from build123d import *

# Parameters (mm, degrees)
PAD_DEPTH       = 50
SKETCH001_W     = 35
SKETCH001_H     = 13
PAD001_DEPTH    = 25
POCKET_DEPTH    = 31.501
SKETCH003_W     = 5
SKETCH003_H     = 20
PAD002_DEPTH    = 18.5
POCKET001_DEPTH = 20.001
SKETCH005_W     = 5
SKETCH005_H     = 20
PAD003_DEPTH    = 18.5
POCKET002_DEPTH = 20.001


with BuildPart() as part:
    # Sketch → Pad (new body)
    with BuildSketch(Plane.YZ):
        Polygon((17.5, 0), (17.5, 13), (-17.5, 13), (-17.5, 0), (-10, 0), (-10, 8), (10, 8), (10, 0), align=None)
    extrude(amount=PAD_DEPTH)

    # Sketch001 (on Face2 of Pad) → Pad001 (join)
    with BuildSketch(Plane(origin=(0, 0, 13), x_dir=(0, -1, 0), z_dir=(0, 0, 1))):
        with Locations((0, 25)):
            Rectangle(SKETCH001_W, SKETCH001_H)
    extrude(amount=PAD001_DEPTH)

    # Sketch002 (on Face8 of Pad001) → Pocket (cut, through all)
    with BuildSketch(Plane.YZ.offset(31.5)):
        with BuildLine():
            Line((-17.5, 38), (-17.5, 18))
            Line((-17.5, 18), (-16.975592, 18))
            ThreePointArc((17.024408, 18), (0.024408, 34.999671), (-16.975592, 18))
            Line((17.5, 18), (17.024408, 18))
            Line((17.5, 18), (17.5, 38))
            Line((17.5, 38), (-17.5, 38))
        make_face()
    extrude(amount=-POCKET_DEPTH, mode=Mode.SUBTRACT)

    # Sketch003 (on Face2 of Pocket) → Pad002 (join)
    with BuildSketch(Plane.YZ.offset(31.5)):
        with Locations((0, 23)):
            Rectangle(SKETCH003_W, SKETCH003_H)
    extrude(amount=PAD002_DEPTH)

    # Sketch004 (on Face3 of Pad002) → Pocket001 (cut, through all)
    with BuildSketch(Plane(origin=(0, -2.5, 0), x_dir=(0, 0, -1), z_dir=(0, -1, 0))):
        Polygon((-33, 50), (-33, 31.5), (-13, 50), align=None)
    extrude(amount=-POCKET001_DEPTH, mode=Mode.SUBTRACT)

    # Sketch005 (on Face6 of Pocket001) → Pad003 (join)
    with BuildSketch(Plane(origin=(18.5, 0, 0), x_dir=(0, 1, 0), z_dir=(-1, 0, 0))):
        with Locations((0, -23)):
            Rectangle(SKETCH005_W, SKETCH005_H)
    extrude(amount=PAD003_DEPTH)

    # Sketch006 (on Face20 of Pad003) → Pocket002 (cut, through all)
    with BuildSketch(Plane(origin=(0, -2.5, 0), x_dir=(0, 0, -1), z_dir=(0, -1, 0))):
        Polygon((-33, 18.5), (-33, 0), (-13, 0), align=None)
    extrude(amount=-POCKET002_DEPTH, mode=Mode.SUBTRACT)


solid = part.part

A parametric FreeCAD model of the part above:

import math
import FreeCAD as App
import Part
import Sketcher
from FreeCAD import Vector
Q = App.Units.Quantity

doc = App.newDocument("Part")
params = doc.addObject("Spreadsheet::Sheet", "Params")
for row, (alias, value) in enumerate([
    ("sketch1_width", "35 mm"),
    ("sketch1_width2", "20 mm"),
    ("sketch1_height", "13 mm"),
    ("sketch1_height2", "8 mm"),
    ("pad1_length", "50 mm"),
    ("sketch2_width", "13 mm"),
    ("sketch2_height", "35 mm"),
    ("pad2_length", "25 mm"),
    ("sketch3_radius", "17 mm"),
    ("sketch3_width", "35 mm"),
    ("sketch3_height", "20 mm"),
    ("sketch4_width", "5 mm"),
    ("sketch4_height", "20 mm"),
    ("pad3_length", "18.5 mm"),
    ("sketch5_height", "20 mm"),
    ("sketch5_width", "18.5 mm"),
    ("sketch6_width", "5 mm"),
    ("sketch6_height", "20 mm"),
    ("pad4_length", "18.5 mm"),
    ("sketch7_height", "20 mm"),
    ("sketch7_width", "18.5 mm"),
], start=1):
    params.set(f"A{row}", alias)
    params.set(f"B{row}", "=" + value)
    params.setAlias(f"B{row}", alias)

body = doc.addObject("PartDesign::Body", "Body")

# Sketch on YZ plane
sketch1 = doc.addObject("Sketcher::SketchObject", "Sketch")
body.addObject(sketch1)
sketch1.AttachmentSupport = (doc.YZ_Plane, [""])
sketch1.MapMode = "FlatFace"
sketch1.addGeometry([
    Part.LineSegment(Vector(18, 0, 0), Vector(18, 13, 0)),  # 0
    Part.LineSegment(Vector(18, 13, 0), Vector(-18, 13, 0)),  # 1
    Part.LineSegment(Vector(-18, 13, 0), Vector(-18, 0, 0)),  # 2
    Part.LineSegment(Vector(-18, 0, 0), Vector(-10, 0, 0)),  # 3
    Part.LineSegment(Vector(-10, 0, 0), Vector(-10, 8, 0)),  # 4
    Part.LineSegment(Vector(-10, 8, 0), Vector(10, 8, 0)),  # 5
    Part.LineSegment(Vector(10, 8, 0), Vector(10, 0, 0)),  # 6
    Part.LineSegment(Vector(10, 0, 0), Vector(18, 0, 0)),  # 7
], False)
sketch1.addConstraint([
    Sketcher.Constraint("Coincident", 0, 2, 1, 1),
    Sketcher.Constraint("Coincident", 1, 2, 2, 1),
    Sketcher.Constraint("Coincident", 2, 2, 3, 1),
    Sketcher.Constraint("Coincident", 3, 2, 4, 1),
    Sketcher.Constraint("Coincident", 4, 2, 5, 1),
    Sketcher.Constraint("Coincident", 5, 2, 6, 1),
    Sketcher.Constraint("Coincident", 6, 2, 7, 1),
    Sketcher.Constraint("Coincident", 7, 2, 0, 1),
    Sketcher.Constraint("Vertical", 0),
    Sketcher.Constraint("Horizontal", 1),
    Sketcher.Constraint("Vertical", 2),
    Sketcher.Constraint("Horizontal", 3),
    Sketcher.Constraint("Vertical", 4),
    Sketcher.Constraint("Horizontal", 5),
    Sketcher.Constraint("Vertical", 6),
    Sketcher.Constraint("Horizontal", 7),
    Sketcher.Constraint("Symmetric", 3, 2, 6, 2, -1, 1),
    Sketcher.Constraint("Symmetric", 2, 2, 7, 2, -2),
    Sketcher.Constraint("DistanceX", 1, 2, 1, 1, Q("35 mm")),
    Sketcher.Constraint("DistanceX", 5, 1, 5, 2, Q("20 mm")),
    Sketcher.Constraint("DistanceY", 0, 1, 0, 2, Q("13 mm")),
    Sketcher.Constraint("DistanceY", 4, 1, 4, 2, Q("8 mm")),
])
sketch1.setExpression("Constraints[18]", "Params.sketch1_width")
sketch1.setExpression("Constraints[19]", "Params.sketch1_width2")
sketch1.setExpression("Constraints[20]", "Params.sketch1_height")
sketch1.setExpression("Constraints[21]", "Params.sketch1_height2")
pad1 = doc.addObject("PartDesign::Pad", "Pad")
body.addObject(pad1)
pad1.Profile = sketch1
pad1.setExpression("Length", "Params.pad1_length")

# Sketch on XY plane
sketch2 = doc.addObject("Sketcher::SketchObject", "Sketch001")
body.addObject(sketch2)
sketch2.AttachmentSupport = (doc.XY_Plane, [""])
sketch2.MapMode = "FlatFace"
sketch2.AttachmentOffset = App.Placement(Vector(0, 0, 13), App.Rotation())
sketch2.addGeometry([
    Part.LineSegment(Vector(32, 18, 0), Vector(18, 18, 0)),
    Part.LineSegment(Vector(18, 18, 0), Vector(18, -18, 0)),
    Part.LineSegment(Vector(18, -18, 0), Vector(32, -18, 0)),
    Part.LineSegment(Vector(32, -18, 0), Vector(32, 18, 0)),
], False)
sketch2.addConstraint([
    Sketcher.Constraint("Coincident", 0, 2, 1, 1),
    Sketcher.Constraint("Coincident", 1, 2, 2, 1),
    Sketcher.Constraint("Coincident", 2, 2, 3, 1),
    Sketcher.Constraint("Coincident", 3, 2, 0, 1),
    Sketcher.Constraint("Horizontal", 0),
    Sketcher.Constraint("Vertical", 1),
    Sketcher.Constraint("Horizontal", 2),
    Sketcher.Constraint("Vertical", 3),
    Sketcher.Constraint("DistanceX", 0, 2, 0, 1, Q("13 mm")),
    Sketcher.Constraint("DistanceY", 1, 2, 1, 1, Q("35 mm")),
    Sketcher.Constraint("DistanceX", -1, 1, 0, 2, Q("18.5 mm")),
    Sketcher.Constraint("DistanceY", -1, 1, 0, 2, Q("17.5 mm")),
])
sketch2.setExpression("Constraints[8]", "Params.sketch2_width")
sketch2.setExpression("Constraints[9]", "Params.sketch2_height")
pad2 = doc.addObject("PartDesign::Pad", "Pad001")
body.addObject(pad2)
pad2.Profile = sketch2
pad2.setExpression("Length", "Params.pad2_length")

# Sketch on YZ plane
sketch3 = doc.addObject("Sketcher::SketchObject", "Sketch002")
body.addObject(sketch3)
sketch3.AttachmentSupport = (doc.YZ_Plane, [""])
sketch3.MapMode = "FlatFace"
sketch3.AttachmentOffset = App.Placement(Vector(0, 0, 31.5), App.Rotation())
sketch3.addGeometry([
    Part.LineSegment(Vector(-17.5, 38, 0), Vector(-17.5, 18, 0)),  # 0
    Part.LineSegment(Vector(-17.5, 18, 0), Vector(-16.98, 18, 0)),  # 1
    Part.ArcOfCircle(Part.Circle(Vector(0.02, 18, 0), Vector(0, 0, 1), 17), math.radians(0), math.radians(180)),  # 2
    Part.LineSegment(Vector(17.02, 18, 0), Vector(17.5, 18, 0)),  # 3
    Part.LineSegment(Vector(17.5, 18, 0), Vector(17.5, 38, 0)),  # 4
    Part.LineSegment(Vector(17.5, 38, 0), Vector(-17.5, 38, 0)),  # 5
], False)
sketch3.addConstraint([
    Sketcher.Constraint("Coincident", 0, 2, 1, 1),
    Sketcher.Constraint("Coincident", 1, 2, 2, 2),
    Sketcher.Constraint("Coincident", 2, 1, 3, 1),
    Sketcher.Constraint("Coincident", 3, 2, 4, 1),
    Sketcher.Constraint("Coincident", 4, 2, 5, 1),
    Sketcher.Constraint("Coincident", 5, 2, 0, 1),
    Sketcher.Constraint("Vertical", 0),
    Sketcher.Constraint("Horizontal", 1),
    Sketcher.Constraint("Horizontal", 3),
    Sketcher.Constraint("Vertical", 4),
    Sketcher.Constraint("Horizontal", 5),
    Sketcher.Constraint("Symmetric", 0, 2, 3, 2, -2),
    Sketcher.Constraint("Radius", 2, Q("17 mm")),
    Sketcher.Constraint("DistanceX", 5, 2, 5, 1, Q("35 mm")),
    Sketcher.Constraint("DistanceY", 0, 2, 0, 1, Q("20 mm")),
    Sketcher.Constraint("DistanceY", -1, 1, 0, 2, Q("18 mm")),
    Sketcher.Constraint("DistanceX", 1, 1, 1, 2, Q("0.524408 mm")),
    Sketcher.Constraint("DistanceY", -1, 1, 2, 3, Q("17.999671 mm")),
])
sketch3.setExpression("Constraints[12]", "Params.sketch3_radius")
sketch3.setExpression("Constraints[13]", "Params.sketch3_width")
sketch3.setExpression("Constraints[14]", "Params.sketch3_height")
pocket1 = doc.addObject("PartDesign::Pocket", "Pocket")
body.addObject(pocket1)
pocket1.Profile = sketch3
pocket1.Type = "ThroughAll"

# Sketch on YZ plane
sketch4 = doc.addObject("Sketcher::SketchObject", "Sketch003")
body.addObject(sketch4)
sketch4.AttachmentSupport = (doc.YZ_Plane, [""])
sketch4.MapMode = "FlatFace"
sketch4.AttachmentOffset = App.Placement(Vector(0, 0, 31.5), App.Rotation())
sketch4.addGeometry([
    Part.LineSegment(Vector(-2, 33, 0), Vector(-2, 13, 0)),
    Part.LineSegment(Vector(-2, 13, 0), Vector(2, 13, 0)),
    Part.LineSegment(Vector(2, 13, 0), Vector(2, 33, 0)),
    Part.LineSegment(Vector(2, 33, 0), Vector(-2, 33, 0)),
], False)
sketch4.addConstraint([
    Sketcher.Constraint("Coincident", 0, 2, 1, 1),
    Sketcher.Constraint("Coincident", 1, 2, 2, 1),
    Sketcher.Constraint("Coincident", 2, 2, 3, 1),
    Sketcher.Constraint("Coincident", 3, 2, 0, 1),
    Sketcher.Constraint("Vertical", 0),
    Sketcher.Constraint("Horizontal", 1),
    Sketcher.Constraint("Vertical", 2),
    Sketcher.Constraint("Horizontal", 3),
    Sketcher.Constraint("DistanceX", 1, 1, 1, 2, Q("5 mm")),
    Sketcher.Constraint("DistanceY", 0, 2, 0, 1, Q("20 mm")),
    Sketcher.Constraint("DistanceY", -1, 1, 0, 2, Q("13 mm")),
    Sketcher.Constraint("DistanceX", 0, 2, -1, 1, Q("2.5 mm")),
])
sketch4.setExpression("Constraints[8]", "Params.sketch4_width")
sketch4.setExpression("Constraints[9]", "Params.sketch4_height")
pad3 = doc.addObject("PartDesign::Pad", "Pad002")
body.addObject(pad3)
pad3.Profile = sketch4
pad3.setExpression("Length", "Params.pad3_length")

# Sketch on XZ plane
sketch5 = doc.addObject("Sketcher::SketchObject", "Sketch004")
body.addObject(sketch5)
sketch5.AttachmentSupport = (doc.XZ_Plane, [""])
sketch5.MapMode = "FlatFace"
sketch5.AttachmentOffset = App.Placement(Vector(0, 0, 2.5), App.Rotation())
sketch5.addGeometry([
    Part.LineSegment(Vector(50, 33, 0), Vector(32, 33, 0)),
    Part.LineSegment(Vector(32, 33, 0), Vector(50, 13, 0)),
    Part.LineSegment(Vector(50, 13, 0), Vector(50, 33, 0)),
], False)
sketch5.addConstraint([
    Sketcher.Constraint("Coincident", 0, 2, 1, 1),
    Sketcher.Constraint("Coincident", 1, 2, 2, 1),
    Sketcher.Constraint("Coincident", 2, 2, 0, 1),
    Sketcher.Constraint("Horizontal", 0),
    Sketcher.Constraint("Vertical", 2),
    Sketcher.Constraint("DistanceY", 2, 1, 2, 2, Q("20 mm")),
    Sketcher.Constraint("DistanceX", 0, 2, 0, 1, Q("18.5 mm")),
    Sketcher.Constraint("DistanceY", -1, 1, 0, 2, Q("33 mm")),
    Sketcher.Constraint("DistanceX", -1, 1, 1, 2, Q("50 mm")),
])
sketch5.setExpression("Constraints[5]", "Params.sketch5_height")
sketch5.setExpression("Constraints[6]", "Params.sketch5_width")
pocket2 = doc.addObject("PartDesign::Pocket", "Pocket001")
body.addObject(pocket2)
pocket2.Profile = sketch5
pocket2.Type = "ThroughAll"

# Sketch on YZ plane
sketch6 = doc.addObject("Sketcher::SketchObject", "Sketch005")
body.addObject(sketch6)
sketch6.AttachmentSupport = (doc.YZ_Plane, [""])
sketch6.MapMode = "FlatFace"
sketch6.AttachmentOffset = App.Placement(Vector(0, 0, 18.5), App.Rotation())
sketch6.addGeometry([
    Part.LineSegment(Vector(-2, 13, 0), Vector(-2, 33, 0)),
    Part.LineSegment(Vector(-2, 33, 0), Vector(2, 33, 0)),
    Part.LineSegment(Vector(2, 33, 0), Vector(2, 13, 0)),
    Part.LineSegment(Vector(2, 13, 0), Vector(-2, 13, 0)),
], False)
sketch6.addConstraint([
    Sketcher.Constraint("Coincident", 0, 2, 1, 1),
    Sketcher.Constraint("Coincident", 1, 2, 2, 1),
    Sketcher.Constraint("Coincident", 2, 2, 3, 1),
    Sketcher.Constraint("Coincident", 3, 2, 0, 1),
    Sketcher.Constraint("Vertical", 0),
    Sketcher.Constraint("Horizontal", 1),
    Sketcher.Constraint("Vertical", 2),
    Sketcher.Constraint("Horizontal", 3),
    Sketcher.Constraint("DistanceX", 1, 1, 1, 2, Q("5 mm")),
    Sketcher.Constraint("DistanceY", 0, 1, 0, 2, Q("20 mm")),
    Sketcher.Constraint("DistanceY", -1, 1, 0, 2, Q("33 mm")),
    Sketcher.Constraint("DistanceX", 0, 2, -1, 1, Q("2.5 mm")),
])
sketch6.setExpression("Constraints[8]", "Params.sketch6_width")
sketch6.setExpression("Constraints[9]", "Params.sketch6_height")
pad4 = doc.addObject("PartDesign::Pad", "Pad003")
body.addObject(pad4)
pad4.Profile = sketch6
pad4.setExpression("Length", "Params.pad4_length")
pad4.Reversed = True

# Sketch on XZ plane
sketch7 = doc.addObject("Sketcher::SketchObject", "Sketch006")
body.addObject(sketch7)
sketch7.AttachmentSupport = (doc.XZ_Plane, [""])
sketch7.MapMode = "FlatFace"
sketch7.AttachmentOffset = App.Placement(Vector(0, 0, 2.5), App.Rotation())
sketch7.addGeometry([
    Part.LineSegment(Vector(18, 33, 0), Vector(0, 33, 0)),
    Part.LineSegment(Vector(0, 33, 0), Vector(0, 13, 0)),
    Part.LineSegment(Vector(0, 13, 0), Vector(18, 33, 0)),
], False)
sketch7.addConstraint([
    Sketcher.Constraint("Coincident", 0, 2, 1, 1),
    Sketcher.Constraint("Coincident", 1, 2, 2, 1),
    Sketcher.Constraint("Coincident", 2, 2, 0, 1),
    Sketcher.Constraint("Horizontal", 0),
    Sketcher.Constraint("Vertical", 1),
    Sketcher.Constraint("PointOnObject", 0, 2, -2),
    Sketcher.Constraint("DistanceY", 1, 2, 1, 1, Q("20 mm")),
    Sketcher.Constraint("DistanceX", 0, 2, 0, 1, Q("18.5 mm")),
    Sketcher.Constraint("DistanceY", -1, 1, 0, 2, Q("33 mm")),
])
sketch7.setExpression("Constraints[6]", "Params.sketch7_height")
sketch7.setExpression("Constraints[7]", "Params.sketch7_width")
pocket3 = doc.addObject("PartDesign::Pocket", "Pocket002")
body.addObject(pocket3)
pocket3.Profile = sketch7
pocket3.Type = "ThroughAll"

doc.recompute()
